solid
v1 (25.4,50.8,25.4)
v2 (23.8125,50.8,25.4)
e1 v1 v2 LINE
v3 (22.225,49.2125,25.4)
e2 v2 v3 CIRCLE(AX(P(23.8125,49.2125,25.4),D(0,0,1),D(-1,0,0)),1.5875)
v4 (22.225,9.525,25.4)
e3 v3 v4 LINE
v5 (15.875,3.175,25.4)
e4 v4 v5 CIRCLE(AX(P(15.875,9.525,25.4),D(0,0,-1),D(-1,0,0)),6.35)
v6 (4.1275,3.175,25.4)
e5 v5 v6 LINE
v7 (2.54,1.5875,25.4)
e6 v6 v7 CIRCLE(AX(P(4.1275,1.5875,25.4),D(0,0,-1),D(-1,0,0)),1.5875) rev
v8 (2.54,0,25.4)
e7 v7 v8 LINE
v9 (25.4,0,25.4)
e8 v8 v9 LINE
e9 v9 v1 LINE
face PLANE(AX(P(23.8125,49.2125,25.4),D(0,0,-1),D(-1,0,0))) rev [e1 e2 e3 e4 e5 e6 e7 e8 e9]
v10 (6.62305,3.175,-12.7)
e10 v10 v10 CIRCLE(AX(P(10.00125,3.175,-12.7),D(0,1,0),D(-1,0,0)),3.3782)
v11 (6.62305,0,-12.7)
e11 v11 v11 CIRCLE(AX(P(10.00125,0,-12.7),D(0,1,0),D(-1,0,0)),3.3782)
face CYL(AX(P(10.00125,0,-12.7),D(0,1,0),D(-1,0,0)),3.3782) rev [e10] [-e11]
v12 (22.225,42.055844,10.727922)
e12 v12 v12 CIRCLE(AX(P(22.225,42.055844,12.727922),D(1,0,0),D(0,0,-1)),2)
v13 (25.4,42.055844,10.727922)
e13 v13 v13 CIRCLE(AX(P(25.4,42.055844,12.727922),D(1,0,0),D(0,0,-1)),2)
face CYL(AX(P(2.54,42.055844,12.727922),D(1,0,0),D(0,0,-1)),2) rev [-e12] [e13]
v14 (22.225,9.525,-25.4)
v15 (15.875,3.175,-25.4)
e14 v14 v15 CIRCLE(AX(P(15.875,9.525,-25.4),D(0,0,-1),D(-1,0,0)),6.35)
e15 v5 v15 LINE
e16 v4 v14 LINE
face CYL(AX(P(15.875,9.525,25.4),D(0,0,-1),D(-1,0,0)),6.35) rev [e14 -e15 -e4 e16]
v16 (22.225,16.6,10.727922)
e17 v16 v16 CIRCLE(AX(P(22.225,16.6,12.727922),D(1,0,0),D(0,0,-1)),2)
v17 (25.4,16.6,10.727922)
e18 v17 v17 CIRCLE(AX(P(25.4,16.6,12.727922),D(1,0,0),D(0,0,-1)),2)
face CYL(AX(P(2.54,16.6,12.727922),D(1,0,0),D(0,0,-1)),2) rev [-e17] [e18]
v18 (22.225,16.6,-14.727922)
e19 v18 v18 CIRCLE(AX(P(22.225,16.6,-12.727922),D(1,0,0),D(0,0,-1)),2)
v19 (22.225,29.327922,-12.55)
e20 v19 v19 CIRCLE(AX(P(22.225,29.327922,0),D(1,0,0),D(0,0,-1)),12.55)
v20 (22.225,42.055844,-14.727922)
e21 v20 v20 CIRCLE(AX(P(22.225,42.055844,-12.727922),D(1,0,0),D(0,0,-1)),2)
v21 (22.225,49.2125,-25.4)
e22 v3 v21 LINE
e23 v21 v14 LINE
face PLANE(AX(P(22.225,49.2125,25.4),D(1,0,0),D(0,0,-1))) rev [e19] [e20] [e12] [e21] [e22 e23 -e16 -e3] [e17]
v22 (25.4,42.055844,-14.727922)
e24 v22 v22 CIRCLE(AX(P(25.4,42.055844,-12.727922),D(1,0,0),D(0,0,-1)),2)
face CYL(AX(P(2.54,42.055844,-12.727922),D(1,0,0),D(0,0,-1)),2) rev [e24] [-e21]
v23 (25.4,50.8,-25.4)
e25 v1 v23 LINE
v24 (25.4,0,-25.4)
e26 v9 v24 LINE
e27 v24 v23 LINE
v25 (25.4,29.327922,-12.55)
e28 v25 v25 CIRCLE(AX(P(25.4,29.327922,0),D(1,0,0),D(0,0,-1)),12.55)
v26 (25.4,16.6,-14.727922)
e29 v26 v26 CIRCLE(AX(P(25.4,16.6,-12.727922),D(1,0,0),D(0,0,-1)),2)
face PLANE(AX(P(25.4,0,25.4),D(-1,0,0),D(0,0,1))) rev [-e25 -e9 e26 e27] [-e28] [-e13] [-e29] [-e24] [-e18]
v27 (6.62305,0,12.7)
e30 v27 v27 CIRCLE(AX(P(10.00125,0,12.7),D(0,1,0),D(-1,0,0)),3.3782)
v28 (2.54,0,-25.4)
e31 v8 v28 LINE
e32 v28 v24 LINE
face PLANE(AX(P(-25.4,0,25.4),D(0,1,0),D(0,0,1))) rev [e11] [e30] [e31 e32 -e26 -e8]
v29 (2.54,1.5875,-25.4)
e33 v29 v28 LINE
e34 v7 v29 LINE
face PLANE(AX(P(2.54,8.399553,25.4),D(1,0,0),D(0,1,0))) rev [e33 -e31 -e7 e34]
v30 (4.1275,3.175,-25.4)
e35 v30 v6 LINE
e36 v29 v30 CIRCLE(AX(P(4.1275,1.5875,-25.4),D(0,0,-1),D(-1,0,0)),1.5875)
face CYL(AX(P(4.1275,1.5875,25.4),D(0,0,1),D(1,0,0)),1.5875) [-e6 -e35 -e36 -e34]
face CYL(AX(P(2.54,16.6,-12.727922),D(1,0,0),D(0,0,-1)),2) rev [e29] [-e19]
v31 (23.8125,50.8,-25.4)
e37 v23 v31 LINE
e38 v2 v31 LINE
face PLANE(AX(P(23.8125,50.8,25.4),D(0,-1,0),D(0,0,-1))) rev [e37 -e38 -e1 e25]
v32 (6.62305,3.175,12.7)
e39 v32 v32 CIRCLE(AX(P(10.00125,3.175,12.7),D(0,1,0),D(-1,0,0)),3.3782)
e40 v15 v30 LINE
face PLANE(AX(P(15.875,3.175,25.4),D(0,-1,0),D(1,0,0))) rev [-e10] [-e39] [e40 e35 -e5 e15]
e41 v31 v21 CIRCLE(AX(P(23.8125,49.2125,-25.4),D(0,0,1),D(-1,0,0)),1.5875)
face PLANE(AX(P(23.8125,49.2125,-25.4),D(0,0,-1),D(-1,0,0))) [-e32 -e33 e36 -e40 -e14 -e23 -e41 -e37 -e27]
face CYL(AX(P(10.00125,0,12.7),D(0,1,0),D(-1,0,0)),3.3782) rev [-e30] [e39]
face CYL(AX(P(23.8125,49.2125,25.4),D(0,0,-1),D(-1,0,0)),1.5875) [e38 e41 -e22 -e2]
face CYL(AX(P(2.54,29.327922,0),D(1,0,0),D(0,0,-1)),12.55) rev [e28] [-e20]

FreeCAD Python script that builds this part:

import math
import FreeCAD as App
import Part
import Sketcher
from FreeCAD import Vector
Q = App.Units.Quantity


def edges_at(feature, points):
    """Names of the edges that pass closest to the given points."""
    edges = feature.Shape.Edges
    near = lambda p: min(range(len(edges)), key=lambda i: edges[i].distToShape(Part.Vertex(*p))[0])
    return sorted({f"Edge{near(p) + 1}" for p in points})


def add_polygon(sketch, points):
    """Adds a closed chain of lines whose ends are joined by coincident constraints."""
    first, n = sketch.GeometryCount, len(points)
    for a, b in zip(points, points[1:] + points[:1]):
        sketch.addGeometry(Part.LineSegment(App.Vector(*a, 0), App.Vector(*b, 0)), False)
    for i in range(n):
        sketch.addConstraint(Sketcher.Constraint("Coincident", first + i, 2, first + (i + 1) % n, 1))

doc = App.newDocument("Part")
body = doc.addObject("PartDesign::Body", "Body")

# Sketch on XY plane
sketch1 = body.newObject("Sketcher::SketchObject", "Sketch")
sketch1.AttachmentSupport = (doc.getObject("XY_Plane"), [""])
sketch1.MapMode = "FlatFace"
sketch1.addGeometry(Part.LineSegment(Vector(-25.4, 0, 0), Vector(25.4, 0, 0)), False)
sketch1.addGeometry(Part.LineSegment(Vector(25.4, 0, 0), Vector(25.4, 50.8, 0)), False)
sketch1.addGeometry(Part.LineSegment(Vector(25.4, 50.8, 0), Vector(23.8, 50.8, 0)), False)
sketch1.addGeometry(Part.ArcOfCircle(Part.Circle(Vector(23.8, 49.2, 0), Vector(0, 0, 1), 1.6), math.radians(90), math.radians(180)), False)
sketch1.addGeometry(Part.LineSegment(Vector(22.2, 49.2, 0), Vector(22.2, 9.5, 0)), False)
sketch1.addGeometry(Part.ArcOfCircle(Part.Circle(Vector(15.9, 9.5, 0), Vector(0, 0, 1), 6.3), math.radians(-90), math.radians(0)), False)
sketch1.addGeometry(Part.LineSegment(Vector(15.9, 3.2, 0), Vector(-23.8, 3.2, 0)), False)
sketch1.addGeometry(Part.ArcOfCircle(Part.Circle(Vector(-23.8, 1.6, 0), Vector(0, 0, 1), 1.6), math.radians(90), math.radians(180)), False)
sketch1.addGeometry(Part.LineSegment(Vector(-25.4, 1.6, 0), Vector(-25.4, 0, 0)), False)
sketch1.addConstraint(Sketcher.Constraint("Coincident", 0, 2, 1, 1))
sketch1.addConstraint(Sketcher.Constraint("Coincident", 1, 2, 2, 1))
sketch1.addConstraint(Sketcher.Constraint("Tangent", 2, 2, 3, 1))
sketch1.addConstraint(Sketcher.Constraint("Tangent", 3, 2, 4, 1))
sketch1.addConstraint(Sketcher.Constraint("Tangent", 4, 2, 5, 2))
sketch1.addConstraint(Sketcher.Constraint("Tangent", 5, 1, 6, 1))
sketch1.addConstraint(Sketcher.Constraint("Tangent", 6, 2, 7, 1))
sketch1.addConstraint(Sketcher.Constraint("Tangent", 7, 2, 8, 1))
sketch1.addConstraint(Sketcher.Constraint("Coincident", 8, 2, 0, 1))
sketch1.addConstraint(Sketcher.Constraint("Horizontal", 0))
sketch1.addConstraint(Sketcher.Constraint("Vertical", 1))
sketch1.addConstraint(Sketcher.Constraint("Horizontal", 2))
sketch1.addConstraint(Sketcher.Constraint("Vertical", 4))
sketch1.addConstraint(Sketcher.Constraint("Horizontal", 6))
sketch1.addConstraint(Sketcher.Constraint("Vertical", 8))
sketch1.addConstraint(Sketcher.Constraint("Equal", 3, 7))
sketch1.addConstraint(Sketcher.Constraint("Symmetric", 0, 2, 8, 2, -1, 1))
sketch1.addConstraint(Sketcher.Constraint("Equal", 0, 1))
sketch1.addConstraint(Sketcher.Constraint("Equal", 6, 4))
sketch1.addConstraint(Sketcher.Constraint("DistanceX", 0, 1, 0, 2, Q("2 in")))
sketch1.addConstraint(Sketcher.Constraint("Radius", 5, Q("0.25 in")))
sketch1.addConstraint(Sketcher.Constraint("Radius", 3, Q("0.0625 in")))
sketch1.addConstraint(Sketcher.Constraint("DistanceX", 2, 2, 2, 1, Q("0.0625 in")))
pad1 = body.newObject("PartDesign::Pad", "Pad")
pad1.Profile = sketch1
pad1.Length = Q("2 in")
pad1.Midplane = True

# Sketch on XY plane
sketch2 = body.newObject("Sketcher::SketchObject", "Sketch001")
sketch2.AttachmentSupport = (doc.getObject("XY_Plane"), [""])
sketch2.MapMode = "FlatFace"
sketch2.AttachmentOffset = App.Placement(Vector(0, 0, -1 * 25.4), App.Rotation())
add_polygon(sketch2, [(3, 8), (3, -5), (-25, -5), (-25, 8)])  # lines 0-3
sketch2.addConstraint(Sketcher.Constraint("Vertical", 0))
sketch2.addConstraint(Sketcher.Constraint("Horizontal", 1))
sketch2.addConstraint(Sketcher.Constraint("Vertical", 2))
sketch2.addConstraint(Sketcher.Constraint("Horizontal", 3))
sketch2.addConstraint(Sketcher.Constraint("DistanceX", 1, 2, 1, 1, Q("1.1 in")))
sketch2.addConstraint(Sketcher.Constraint("DistanceX", 1, 2, -1, 1, Q("1 in")))
sketch2.addConstraint(Sketcher.Constraint("DistanceY", 0, 2, 0, 1, Q("13.830872 mm")))
sketch2.addConstraint(Sketcher.Constraint("DistanceY", 0, 2, -1, 1, Q("5.43132 mm")))
pocket1 = body.newObject("PartDesign::Pocket", "Pocket")
pocket1.Profile = sketch2
pocket1.Type = "ThroughAll"
pocket1.Reversed = True
doc.recompute()

fillet = body.newObject("PartDesign::Fillet", "Fillet")
fillet.Base = (pocket1, edges_at(pocket1, [(2.54, 3.175, 0)]))
fillet.Radius = Q("0.0625 in")

# Sketch on XZ plane
sketch3 = body.newObject("Sketcher::SketchObject", "Sketch002")
sketch3.AttachmentSupport = (doc.getObject("XZ_Plane"), [""])
sketch3.MapMode = "FlatFace"
sketch3.AttachmentOffset = App.Placement(Vector(0, 0, -0.125 * 25.4), App.Rotation())
sketch3.addGeometry(Part.Circle(Vector(10, -12.7, 0), Vector(0, 0, 1), 3.4), False)
sketch3.addGeometry(Part.Circle(Vector(10, 12.7, 0), Vector(0, 0, 1), 3.4), False)
sketch3.addConstraint(Sketcher.Constraint("Equal", 0, 1))
sketch3.addConstraint(Sketcher.Constraint("Symmetric", 0, 3, 1, 3, -1))
sketch3.addConstraint(Sketcher.Constraint("Diameter", 0, Q("0.266 in")))
sketch3.addConstraint(Sketcher.Constraint("DistanceY", 0, 3, 1, 3, Q("1 in")))
sketch3.addConstraint(Sketcher.Constraint("DistanceX", -1, 1, 0, 3, Q("10.00125 mm")))
pocket2 = body.newObject("PartDesign::Pocket", "Pocket001")
pocket2.Profile = sketch3
pocket2.Type = "ThroughAll"
pocket2.Reversed = True

# Sketch on YZ plane
sketch4 = body.newObject("Sketcher::SketchObject", "Sketch003")
sketch4.AttachmentSupport = (doc.getObject("YZ_Plane"), [""])
sketch4.MapMode = "FlatFace"
sketch4.AttachmentOffset = App.Placement(Vector(0, 0, 1 * 25.4), App.Rotation())
sketch4.addGeometry(Part.Circle(Vector(16.6, -12.7, 0), Vector(0, 0, 1), 2), False)
sketch4.addGeometry(Part.Circle(Vector(16.6, 12.7, 0), Vector(0, 0, 1), 2), False)
sketch4.addGeometry(Part.Circle(Vector(42.1, 12.7, 0), Vector(0, 0, 1), 2), False)
sketch4.addGeometry(Part.Circle(Vector(42.1, -12.7, 0), Vector(0, 0, 1), 2), False)
sketch4.addGeometry(Part.Circle(Vector(29.3, 0, 0), Vector(0, 0, 1), 12.6), False)
sketch4.addConstraint(Sketcher.Constraint("Equal", 0, 1))
sketch4.addConstraint(Sketcher.Constraint("Equal", 1, 2))
sketch4.addConstraint(Sketcher.Constraint("Equal", 2, 3))
sketch4.addConstraint(Sketcher.Constraint("Symmetric", 0, 3, 1, 3, -1))
sketch4.addConstraint(Sketcher.Constraint("Symmetric", 2, 3, 3, 3, -1))
sketch4.addConstraint(Sketcher.Constraint("PointOnObject", 4, 3, -1))
sketch4.addConstraint(Sketcher.Constraint("Horizontal", 1, 3, 2, 3))
sketch4.addConstraint(Sketcher.Constraint("Diameter", 0, Q("4 mm")))
sketch4.addConstraint(Sketcher.Constraint("Diameter", 4, Q("25.1 mm")))
sketch4.addConstraint(Sketcher.Constraint("DistanceX", -1, 1, 0, 3, Q("16.6 mm")))
sketch4.addConstraint(Sketcher.Constraint("DistanceY", 0, 3, -1, 1, Q("12.727922 mm")))
sketch4.addConstraint(Sketcher.Constraint("DistanceX", -1, 1, 2, 3, Q("42.055844 mm")))
sketch4.addConstraint(Sketcher.Constraint("DistanceX", -1, 1, 4, 3, Q("29.327922 mm")))
pocket3 = body.newObject("PartDesign::Pocket", "Pocket002")
pocket3.Profile = sketch4
pocket3.Type = "ThroughAll"

doc.recompute()
